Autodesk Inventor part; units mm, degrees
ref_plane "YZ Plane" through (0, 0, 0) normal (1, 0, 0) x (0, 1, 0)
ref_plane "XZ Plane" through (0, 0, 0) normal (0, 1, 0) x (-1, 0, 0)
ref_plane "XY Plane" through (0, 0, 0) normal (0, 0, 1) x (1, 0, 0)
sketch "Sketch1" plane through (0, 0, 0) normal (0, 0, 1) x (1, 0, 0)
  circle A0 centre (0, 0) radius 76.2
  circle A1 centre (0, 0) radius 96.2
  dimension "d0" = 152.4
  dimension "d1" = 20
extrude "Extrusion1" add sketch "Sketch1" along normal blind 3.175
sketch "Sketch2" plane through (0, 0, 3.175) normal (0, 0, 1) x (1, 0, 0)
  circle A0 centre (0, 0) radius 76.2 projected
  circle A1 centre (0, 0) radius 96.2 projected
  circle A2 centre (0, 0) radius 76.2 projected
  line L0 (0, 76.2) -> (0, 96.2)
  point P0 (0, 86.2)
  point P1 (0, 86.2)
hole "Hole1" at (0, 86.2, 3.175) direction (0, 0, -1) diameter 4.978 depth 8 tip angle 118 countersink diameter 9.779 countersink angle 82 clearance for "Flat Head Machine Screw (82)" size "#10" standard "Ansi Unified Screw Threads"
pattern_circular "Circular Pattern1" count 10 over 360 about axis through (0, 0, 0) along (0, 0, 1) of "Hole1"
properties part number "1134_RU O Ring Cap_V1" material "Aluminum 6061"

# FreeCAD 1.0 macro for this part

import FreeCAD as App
import Part
import Sketcher
from FreeCAD import Vector
Q = App.Units.Quantity

doc = App.newDocument("Part")
body = doc.addObject("PartDesign::Body", "Body")

sketch1 = body.newObject("Sketcher::SketchObject", "Sketch")
sketch1.AttachmentSupport = (doc.getObject("XY_Plane"), [""])
sketch1.MapMode = "FlatFace"
sketch1.addGeometry([
    Part.Circle(Vector(0, 0, 0), Vector(0, 0, 1), 96),
    Part.Circle(Vector(0, 0, 0), Vector(0, 0, 1), 76),
], False)
sketch1.addConstraint([
    Sketcher.Constraint("Coincident", 0, 3, -1, 1),
    Sketcher.Constraint("Coincident", 1, 3, -1, 1),
    Sketcher.Constraint("Diameter", 1, Q("6 in")),
    Sketcher.Constraint("Diameter", 0, Q("7.5748 in")),
])
pad1 = body.newObject("PartDesign::Pad", "Pad")
pad1.Profile = sketch1
pad1.Length = Q("0.125 in")

sketch2 = body.newObject("Sketcher::SketchObject", "Sketch001")
sketch2.AttachmentSupport = (doc.getObject("XY_Plane"), [""])
sketch2.MapMode = "FlatFace"
sketch2.AttachmentOffset = App.Placement(Vector(0, 0, 0.125 * 25.4), App.Rotation())
sketch2.addGeometry(Part.Circle(Vector(0, 86.2, 0), Vector(0, 0, 1), 2.5), False)
sketch2.addConstraint([
    Sketcher.Constraint("PointOnObject", 0, 3, -2),
    Sketcher.Constraint("Diameter", 0, Q("4.978 mm")),
    Sketcher.Constraint("DistanceY", -1, 1, 0, 3, Q("3.3937 in")),
])
doc.recompute()
hole = body.newObject("PartDesign::Hole", "Hole")
hole.Profile = sketch2
hole.ThreadType = "None"
hole.Diameter = 4.978
hole.DepthType = "Dimension"
hole.Depth = 8
hole.DrillPoint = "Angled"
hole.DrillPointAngle = 118
hole.HoleCutType = "Countersink"
hole.HoleCutDiameter = Q("0.385 in")
hole.HoleCutCountersinkAngle = 82
doc.recompute()

polarpattern = body.newObject("PartDesign::PolarPattern", "PolarPattern")
polarpattern.Originals = [hole]
polarpattern.Axis = (doc.getObject("Z_Axis"), [""])
polarpattern.Angle = 360
polarpattern.Occurrences = 10
body.Tip = polarpattern

doc.recompute()
